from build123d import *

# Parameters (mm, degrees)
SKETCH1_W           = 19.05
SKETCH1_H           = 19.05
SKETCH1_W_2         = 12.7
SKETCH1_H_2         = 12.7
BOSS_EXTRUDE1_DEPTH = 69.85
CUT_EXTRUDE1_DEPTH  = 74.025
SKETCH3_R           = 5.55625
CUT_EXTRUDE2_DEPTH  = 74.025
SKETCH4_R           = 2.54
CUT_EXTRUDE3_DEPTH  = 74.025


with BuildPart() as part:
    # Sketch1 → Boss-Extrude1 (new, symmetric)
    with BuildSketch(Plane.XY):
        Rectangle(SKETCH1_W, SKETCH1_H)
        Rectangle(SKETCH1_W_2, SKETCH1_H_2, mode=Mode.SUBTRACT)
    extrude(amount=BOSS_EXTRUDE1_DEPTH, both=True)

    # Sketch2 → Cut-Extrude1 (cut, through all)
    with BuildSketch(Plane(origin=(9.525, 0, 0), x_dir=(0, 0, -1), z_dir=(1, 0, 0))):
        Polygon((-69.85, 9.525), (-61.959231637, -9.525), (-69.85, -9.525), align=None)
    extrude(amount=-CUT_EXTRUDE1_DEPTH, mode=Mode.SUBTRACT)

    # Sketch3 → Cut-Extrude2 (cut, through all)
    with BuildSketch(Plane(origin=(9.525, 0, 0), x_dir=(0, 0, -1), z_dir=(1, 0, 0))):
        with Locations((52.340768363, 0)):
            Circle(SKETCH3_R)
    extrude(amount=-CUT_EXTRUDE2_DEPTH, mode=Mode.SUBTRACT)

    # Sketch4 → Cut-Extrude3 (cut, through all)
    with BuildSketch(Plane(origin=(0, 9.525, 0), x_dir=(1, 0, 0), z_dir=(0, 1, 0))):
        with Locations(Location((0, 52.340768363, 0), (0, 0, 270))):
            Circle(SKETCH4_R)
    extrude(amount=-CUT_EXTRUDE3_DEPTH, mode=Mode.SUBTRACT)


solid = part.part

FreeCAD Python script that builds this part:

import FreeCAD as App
import Part
import Sketcher
Q = App.Units.Quantity


def add_polygon(sketch, points):
    """Adds a closed chain of lines whose ends are joined by coincident constraints."""
    first, n = sketch.GeometryCount, len(points)
    for a, b in zip(points, points[1:] + points[:1]):
        sketch.addGeometry(Part.LineSegment(App.Vector(*a, 0), App.Vector(*b, 0)), False)
    for i in range(n):
        sketch.addConstraint(Sketcher.Constraint("Coincident", first + i, 2, first + (i + 1) % n, 1))

doc = App.newDocument("Part")
params = doc.addObject("Spreadsheet::Sheet", "Params")
for row, (alias, value) in enumerate([
    ("sketch1_width", "0.5 in"),
    ("sketch1_width2", "0.75 in"),
    ("pad1_length", "5.5 in"),
    ("sketch2_width", "0.75 in"),
    ("sketch3_diameter", "0.4375 in"),
    ("sketch4_diameter", "0.2 in"),
], start=1):
    params.set(f"A{row}", alias)
    params.set(f"B{row}", "=" + value)
    params.setAlias(f"B{row}", alias)

body = doc.addObject("PartDesign::Body", "Body")

# Sketch on XY plane
sketch1 = body.newObject("Sketcher::SketchObject", "Sketch")
sketch1.AttachmentSupport = (doc.getObject("XY_Plane"), [""])
sketch1.MapMode = "FlatFace"
add_polygon(sketch1, [(-10, 10), (-10, -10), (10, -10), (10, 10)])  # lines 0-3
add_polygon(sketch1, [(6, -6), (-6, -6), (-6, 6), (6, 6)])  # lines 4-7
sketch1.addConstraint(Sketcher.Constraint("Vertical", 0))
sketch1.addConstraint(Sketcher.Constraint("Horizontal", 1))
sketch1.addConstraint(Sketcher.Constraint("Vertical", 2))
sketch1.addConstraint(Sketcher.Constraint("Horizontal", 3))
sketch1.addConstraint(Sketcher.Constraint("Horizontal", 4))
sketch1.addConstraint(Sketcher.Constraint("Vertical", 5))
sketch1.addConstraint(Sketcher.Constraint("Horizontal", 6))
sketch1.addConstraint(Sketcher.Constraint("Vertical", 7))
sketch1.addConstraint(Sketcher.Constraint("Symmetric", 0, 2, 2, 2, -1, 1))
sketch1.addConstraint(Sketcher.Constraint("Symmetric", 4, 2, 6, 2, -1, 1))
sketch1.addConstraint(Sketcher.Constraint("Equal", 3, 0))
sketch1.addConstraint(Sketcher.Constraint("Equal", 6, 5))
sketch1.addConstraint(Sketcher.Constraint("DistanceX", 4, 2, 4, 1, Q("0.5 in")))
sketch1.addConstraint(Sketcher.Constraint("DistanceX", 1, 1, 1, 2, Q("0.75 in")))
sketch1.setExpression("Constraints[20]", "Params.sketch1_width")
sketch1.setExpression("Constraints[21]", "Params.sketch1_width2")
pad1 = body.newObject("PartDesign::Pad", "Pad")
pad1.Profile = sketch1
pad1.setExpression("Length", "Params.pad1_length")
pad1.Midplane = True

# Sketch on YZ plane
sketch2 = body.newObject("Sketcher::SketchObject", "Sketch001")
sketch2.AttachmentSupport = (doc.getObject("YZ_Plane"), [""])
sketch2.MapMode = "FlatFace"
sketch2.AttachmentOffset = App.Placement(App.Vector(0, 0, 0.375 * 25.4), App.Rotation())
add_polygon(sketch2, [(-10, 62), (10, 70), (-10, 70)])  # lines 0-2
sketch2.addConstraint(Sketcher.Constraint("Horizontal", 1))
sketch2.addConstraint(Sketcher.Constraint("Vertical", 2))
sketch2.addConstraint(Sketcher.Constraint("DistanceX", 1, 2, 1, 1, Q("0.75 in")))
sketch2.addConstraint(Sketcher.Constraint("Angle", 0, Q("22.5 deg")))
sketch2.addConstraint(Sketcher.Constraint("DistanceY", -1, 1, 0, 2, Q("2.75 in")))
sketch2.addConstraint(Sketcher.Constraint("DistanceX", -1, 1, 0, 2, Q("0.375 in")))
sketch2.setExpression("Constraints[5]", "Params.sketch2_width")
pocket1 = body.newObject("PartDesign::Pocket", "Pocket")
pocket1.Profile = sketch2
pocket1.Type = "ThroughAll"

# Sketch on YZ plane
sketch3 = body.newObject("Sketcher::SketchObject", "Sketch002")
sketch3.AttachmentSupport = (doc.getObject("YZ_Plane"), [""])
sketch3.MapMode = "FlatFace"
sketch3.AttachmentOffset = App.Placement(App.Vector(0, 0, 0.375 * 25.4), App.Rotation())
sketch3.addGeometry(Part.Circle(App.Vector(0, -52, 0), App.Vector(0, 0, 1), 6), False)
sketch3.addConstraint(Sketcher.Constraint("PointOnObject", 0, 3, -2))
sketch3.addConstraint(Sketcher.Constraint("Diameter", 0, Q("0.4375 in")))
sketch3.addConstraint(Sketcher.Constraint("DistanceY", 0, 3, -1, 1, 52.340768))
sketch3.setExpression("Constraints[1]", "Params.sketch3_diameter")
pocket2 = body.newObject("PartDesign::Pocket", "Pocket001")
pocket2.Profile = sketch3
pocket2.Type = "ThroughAll"

# Sketch on XZ plane
sketch4 = body.newObject("Sketcher::SketchObject", "Sketch003")
sketch4.AttachmentSupport = (doc.getObject("XZ_Plane"), [""])
sketch4.MapMode = "FlatFace"
sketch4.AttachmentOffset = App.Placement(App.Vector(0, 0, -0.375 * 25.4), App.Rotation())
sketch4.addGeometry(Part.Circle(App.Vector(0, -52.3, 0), App.Vector(0, 0, 1), 2.5), False)
sketch4.addConstraint(Sketcher.Constraint("PointOnObject", 0, 3, -2))
sketch4.addConstraint(Sketcher.Constraint("Diameter", 0, Q("0.2 in")))
sketch4.addConstraint(Sketcher.Constraint("DistanceY", 0, 3, -1, 1, 52.340768))
sketch4.setExpression("Constraints[1]", "Params.sketch4_diameter")
pocket3 = body.newObject("PartDesign::Pocket", "Pocket002")
pocket3.Profile = sketch4
pocket3.Type = "ThroughAll"
pocket3.Reversed = True

doc.recompute()
